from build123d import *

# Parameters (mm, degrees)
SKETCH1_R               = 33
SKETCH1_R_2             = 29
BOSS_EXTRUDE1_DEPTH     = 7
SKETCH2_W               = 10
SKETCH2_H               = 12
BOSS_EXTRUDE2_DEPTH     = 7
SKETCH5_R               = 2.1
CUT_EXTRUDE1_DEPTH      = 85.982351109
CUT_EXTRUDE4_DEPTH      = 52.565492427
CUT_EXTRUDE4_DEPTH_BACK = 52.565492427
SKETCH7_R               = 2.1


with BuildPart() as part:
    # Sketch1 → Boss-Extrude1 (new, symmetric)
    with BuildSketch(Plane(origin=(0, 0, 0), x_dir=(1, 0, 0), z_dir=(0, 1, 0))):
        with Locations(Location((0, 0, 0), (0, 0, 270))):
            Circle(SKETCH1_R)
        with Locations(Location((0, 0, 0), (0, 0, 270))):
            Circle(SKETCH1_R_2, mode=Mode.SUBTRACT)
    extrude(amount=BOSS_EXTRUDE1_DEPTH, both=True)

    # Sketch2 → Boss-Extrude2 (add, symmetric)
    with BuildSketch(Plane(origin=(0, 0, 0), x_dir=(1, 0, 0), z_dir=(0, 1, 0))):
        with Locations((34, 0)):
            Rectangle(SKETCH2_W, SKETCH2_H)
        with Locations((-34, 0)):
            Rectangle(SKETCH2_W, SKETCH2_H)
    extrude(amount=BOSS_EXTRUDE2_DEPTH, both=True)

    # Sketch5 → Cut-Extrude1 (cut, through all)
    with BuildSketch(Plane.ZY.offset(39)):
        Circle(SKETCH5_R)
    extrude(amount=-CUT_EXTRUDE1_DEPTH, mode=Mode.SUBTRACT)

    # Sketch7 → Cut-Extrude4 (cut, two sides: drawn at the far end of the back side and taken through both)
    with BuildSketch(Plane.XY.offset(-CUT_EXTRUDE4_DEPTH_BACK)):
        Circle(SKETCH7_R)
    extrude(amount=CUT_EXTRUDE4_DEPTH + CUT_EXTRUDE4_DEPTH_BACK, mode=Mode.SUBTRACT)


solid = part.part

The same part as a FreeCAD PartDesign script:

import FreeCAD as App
import Part
import Sketcher
from FreeCAD import Vector
Q = App.Units.Quantity

doc = App.newDocument("Part")
body = doc.addObject("PartDesign::Body", "Body")

# Sketch on XZ plane
sketch1 = body.newObject("Sketcher::SketchObject", "Sketch")
sketch1.AttachmentSupport = (doc.getObject("XZ_Plane"), [""])
sketch1.MapMode = "FlatFace"
sketch1.addGeometry([
    Part.Circle(Vector(0, 0, 0), Vector(0, 0, 1), 33),
    Part.Circle(Vector(0, 0, 0), Vector(0, 0, 1), 29),
], False)
sketch1.addConstraint([
    Sketcher.Constraint("Coincident", 0, 3, -1, 1),
    Sketcher.Constraint("Coincident", 1, 3, -1, 1),
    Sketcher.Constraint("Diameter", 0, Q("66 mm")),
    Sketcher.Constraint("Diameter", 1, Q("58 mm")),
])
pad1 = body.newObject("PartDesign::Pad", "Pad")
pad1.Profile = sketch1
pad1.Length = 14
pad1.Midplane = True

# Sketch on XZ plane
sketch2 = body.newObject("Sketcher::SketchObject", "Sketch001")
sketch2.AttachmentSupport = (doc.getObject("XZ_Plane"), [""])
sketch2.MapMode = "FlatFace"
sketch2.addGeometry([
    Part.LineSegment(Vector(29, -6, 0), Vector(29, 6, 0)),  # 0
    Part.LineSegment(Vector(29, 6, 0), Vector(39, 6, 0)),  # 1
    Part.LineSegment(Vector(39, 6, 0), Vector(39, -6, 0)),  # 2
    Part.LineSegment(Vector(39, -6, 0), Vector(29, -6, 0)),  # 3
    Part.LineSegment(Vector(-39, -6, 0), Vector(-39, 6, 0)),  # 4
    Part.LineSegment(Vector(-39, 6, 0), Vector(-29, 6, 0)),  # 5
    Part.LineSegment(Vector(-29, 6, 0), Vector(-29, -6, 0)),  # 6
    Part.LineSegment(Vector(-29, -6, 0), Vector(-39, -6, 0)),  # 7
], False)
sketch2.addConstraint([
    Sketcher.Constraint("Coincident", 0, 2, 1, 1),
    Sketcher.Constraint("Coincident", 1, 2, 2, 1),
    Sketcher.Constraint("Coincident", 2, 2, 3, 1),
    Sketcher.Constraint("Coincident", 3, 2, 0, 1),
    Sketcher.Constraint("Coincident", 4, 2, 5, 1),
    Sketcher.Constraint("Coincident", 5, 2, 6, 1),
    Sketcher.Constraint("Coincident", 6, 2, 7, 1),
    Sketcher.Constraint("Coincident", 7, 2, 4, 1),
    Sketcher.Constraint("Vertical", 0),
    Sketcher.Constraint("Horizontal", 1),
    Sketcher.Constraint("Vertical", 2),
    Sketcher.Constraint("Horizontal", 3),
    Sketcher.Constraint("Vertical", 4),
    Sketcher.Constraint("Horizontal", 5),
    Sketcher.Constraint("Vertical", 6),
    Sketcher.Constraint("Horizontal", 7),
    Sketcher.Constraint("Symmetric", 2, 2, 4, 2, -1, 1),
    Sketcher.Constraint("Symmetric", 0, 2, 6, 2, -1, 1),
    Sketcher.Constraint("Horizontal", 1, 2, 4, 2),
    Sketcher.Constraint("DistanceX", 1, 1, 1, 2, Q("10 mm")),
    Sketcher.Constraint("DistanceY", 0, 1, 0, 2, Q("12 mm")),
    Sketcher.Constraint("DistanceX", -1, 1, 0, 2, Q("29 mm")),
])
pad2 = body.newObject("PartDesign::Pad", "Pad001")
pad2.Profile = sketch2
pad2.Length = 14
pad2.Midplane = True

# Sketch on YZ plane
sketch3 = body.newObject("Sketcher::SketchObject", "Sketch002")
sketch3.AttachmentSupport = (doc.getObject("YZ_Plane"), [""])
sketch3.MapMode = "FlatFace"
sketch3.AttachmentOffset = App.Placement(Vector(0, 0, -39), App.Rotation())
sketch3.addGeometry(Part.Circle(Vector(0, 0, 0), Vector(0, 0, 1), 2.1), False)
sketch3.addConstraint([
    Sketcher.Constraint("Coincident", 0, 3, -1, 1),
    Sketcher.Constraint("Diameter", 0, Q("4.2 mm")),
])
pocket1 = body.newObject("PartDesign::Pocket", "Pocket")
pocket1.Profile = sketch3
pocket1.Type = "ThroughAll"
pocket1.Reversed = True

# Sketch on XY plane
sketch4 = body.newObject("Sketcher::SketchObject", "Sketch003")
sketch4.AttachmentSupport = (doc.getObject("XY_Plane"), [""])
sketch4.MapMode = "FlatFace"
sketch4.addGeometry(Part.Circle(Vector(0, 0, 0), Vector(0, 0, 1), 2.1), False)
sketch4.addConstraint([
    Sketcher.Constraint("Coincident", 0, 3, -1, 1),
    Sketcher.Constraint("Diameter", 0, Q("4.2 mm")),
])
pocket2 = body.newObject("PartDesign::Pocket", "Pocket001")
pocket2.Profile = sketch4
pocket2.Type = "ThroughAll"
pocket2.Midplane = True

doc.recompute()
